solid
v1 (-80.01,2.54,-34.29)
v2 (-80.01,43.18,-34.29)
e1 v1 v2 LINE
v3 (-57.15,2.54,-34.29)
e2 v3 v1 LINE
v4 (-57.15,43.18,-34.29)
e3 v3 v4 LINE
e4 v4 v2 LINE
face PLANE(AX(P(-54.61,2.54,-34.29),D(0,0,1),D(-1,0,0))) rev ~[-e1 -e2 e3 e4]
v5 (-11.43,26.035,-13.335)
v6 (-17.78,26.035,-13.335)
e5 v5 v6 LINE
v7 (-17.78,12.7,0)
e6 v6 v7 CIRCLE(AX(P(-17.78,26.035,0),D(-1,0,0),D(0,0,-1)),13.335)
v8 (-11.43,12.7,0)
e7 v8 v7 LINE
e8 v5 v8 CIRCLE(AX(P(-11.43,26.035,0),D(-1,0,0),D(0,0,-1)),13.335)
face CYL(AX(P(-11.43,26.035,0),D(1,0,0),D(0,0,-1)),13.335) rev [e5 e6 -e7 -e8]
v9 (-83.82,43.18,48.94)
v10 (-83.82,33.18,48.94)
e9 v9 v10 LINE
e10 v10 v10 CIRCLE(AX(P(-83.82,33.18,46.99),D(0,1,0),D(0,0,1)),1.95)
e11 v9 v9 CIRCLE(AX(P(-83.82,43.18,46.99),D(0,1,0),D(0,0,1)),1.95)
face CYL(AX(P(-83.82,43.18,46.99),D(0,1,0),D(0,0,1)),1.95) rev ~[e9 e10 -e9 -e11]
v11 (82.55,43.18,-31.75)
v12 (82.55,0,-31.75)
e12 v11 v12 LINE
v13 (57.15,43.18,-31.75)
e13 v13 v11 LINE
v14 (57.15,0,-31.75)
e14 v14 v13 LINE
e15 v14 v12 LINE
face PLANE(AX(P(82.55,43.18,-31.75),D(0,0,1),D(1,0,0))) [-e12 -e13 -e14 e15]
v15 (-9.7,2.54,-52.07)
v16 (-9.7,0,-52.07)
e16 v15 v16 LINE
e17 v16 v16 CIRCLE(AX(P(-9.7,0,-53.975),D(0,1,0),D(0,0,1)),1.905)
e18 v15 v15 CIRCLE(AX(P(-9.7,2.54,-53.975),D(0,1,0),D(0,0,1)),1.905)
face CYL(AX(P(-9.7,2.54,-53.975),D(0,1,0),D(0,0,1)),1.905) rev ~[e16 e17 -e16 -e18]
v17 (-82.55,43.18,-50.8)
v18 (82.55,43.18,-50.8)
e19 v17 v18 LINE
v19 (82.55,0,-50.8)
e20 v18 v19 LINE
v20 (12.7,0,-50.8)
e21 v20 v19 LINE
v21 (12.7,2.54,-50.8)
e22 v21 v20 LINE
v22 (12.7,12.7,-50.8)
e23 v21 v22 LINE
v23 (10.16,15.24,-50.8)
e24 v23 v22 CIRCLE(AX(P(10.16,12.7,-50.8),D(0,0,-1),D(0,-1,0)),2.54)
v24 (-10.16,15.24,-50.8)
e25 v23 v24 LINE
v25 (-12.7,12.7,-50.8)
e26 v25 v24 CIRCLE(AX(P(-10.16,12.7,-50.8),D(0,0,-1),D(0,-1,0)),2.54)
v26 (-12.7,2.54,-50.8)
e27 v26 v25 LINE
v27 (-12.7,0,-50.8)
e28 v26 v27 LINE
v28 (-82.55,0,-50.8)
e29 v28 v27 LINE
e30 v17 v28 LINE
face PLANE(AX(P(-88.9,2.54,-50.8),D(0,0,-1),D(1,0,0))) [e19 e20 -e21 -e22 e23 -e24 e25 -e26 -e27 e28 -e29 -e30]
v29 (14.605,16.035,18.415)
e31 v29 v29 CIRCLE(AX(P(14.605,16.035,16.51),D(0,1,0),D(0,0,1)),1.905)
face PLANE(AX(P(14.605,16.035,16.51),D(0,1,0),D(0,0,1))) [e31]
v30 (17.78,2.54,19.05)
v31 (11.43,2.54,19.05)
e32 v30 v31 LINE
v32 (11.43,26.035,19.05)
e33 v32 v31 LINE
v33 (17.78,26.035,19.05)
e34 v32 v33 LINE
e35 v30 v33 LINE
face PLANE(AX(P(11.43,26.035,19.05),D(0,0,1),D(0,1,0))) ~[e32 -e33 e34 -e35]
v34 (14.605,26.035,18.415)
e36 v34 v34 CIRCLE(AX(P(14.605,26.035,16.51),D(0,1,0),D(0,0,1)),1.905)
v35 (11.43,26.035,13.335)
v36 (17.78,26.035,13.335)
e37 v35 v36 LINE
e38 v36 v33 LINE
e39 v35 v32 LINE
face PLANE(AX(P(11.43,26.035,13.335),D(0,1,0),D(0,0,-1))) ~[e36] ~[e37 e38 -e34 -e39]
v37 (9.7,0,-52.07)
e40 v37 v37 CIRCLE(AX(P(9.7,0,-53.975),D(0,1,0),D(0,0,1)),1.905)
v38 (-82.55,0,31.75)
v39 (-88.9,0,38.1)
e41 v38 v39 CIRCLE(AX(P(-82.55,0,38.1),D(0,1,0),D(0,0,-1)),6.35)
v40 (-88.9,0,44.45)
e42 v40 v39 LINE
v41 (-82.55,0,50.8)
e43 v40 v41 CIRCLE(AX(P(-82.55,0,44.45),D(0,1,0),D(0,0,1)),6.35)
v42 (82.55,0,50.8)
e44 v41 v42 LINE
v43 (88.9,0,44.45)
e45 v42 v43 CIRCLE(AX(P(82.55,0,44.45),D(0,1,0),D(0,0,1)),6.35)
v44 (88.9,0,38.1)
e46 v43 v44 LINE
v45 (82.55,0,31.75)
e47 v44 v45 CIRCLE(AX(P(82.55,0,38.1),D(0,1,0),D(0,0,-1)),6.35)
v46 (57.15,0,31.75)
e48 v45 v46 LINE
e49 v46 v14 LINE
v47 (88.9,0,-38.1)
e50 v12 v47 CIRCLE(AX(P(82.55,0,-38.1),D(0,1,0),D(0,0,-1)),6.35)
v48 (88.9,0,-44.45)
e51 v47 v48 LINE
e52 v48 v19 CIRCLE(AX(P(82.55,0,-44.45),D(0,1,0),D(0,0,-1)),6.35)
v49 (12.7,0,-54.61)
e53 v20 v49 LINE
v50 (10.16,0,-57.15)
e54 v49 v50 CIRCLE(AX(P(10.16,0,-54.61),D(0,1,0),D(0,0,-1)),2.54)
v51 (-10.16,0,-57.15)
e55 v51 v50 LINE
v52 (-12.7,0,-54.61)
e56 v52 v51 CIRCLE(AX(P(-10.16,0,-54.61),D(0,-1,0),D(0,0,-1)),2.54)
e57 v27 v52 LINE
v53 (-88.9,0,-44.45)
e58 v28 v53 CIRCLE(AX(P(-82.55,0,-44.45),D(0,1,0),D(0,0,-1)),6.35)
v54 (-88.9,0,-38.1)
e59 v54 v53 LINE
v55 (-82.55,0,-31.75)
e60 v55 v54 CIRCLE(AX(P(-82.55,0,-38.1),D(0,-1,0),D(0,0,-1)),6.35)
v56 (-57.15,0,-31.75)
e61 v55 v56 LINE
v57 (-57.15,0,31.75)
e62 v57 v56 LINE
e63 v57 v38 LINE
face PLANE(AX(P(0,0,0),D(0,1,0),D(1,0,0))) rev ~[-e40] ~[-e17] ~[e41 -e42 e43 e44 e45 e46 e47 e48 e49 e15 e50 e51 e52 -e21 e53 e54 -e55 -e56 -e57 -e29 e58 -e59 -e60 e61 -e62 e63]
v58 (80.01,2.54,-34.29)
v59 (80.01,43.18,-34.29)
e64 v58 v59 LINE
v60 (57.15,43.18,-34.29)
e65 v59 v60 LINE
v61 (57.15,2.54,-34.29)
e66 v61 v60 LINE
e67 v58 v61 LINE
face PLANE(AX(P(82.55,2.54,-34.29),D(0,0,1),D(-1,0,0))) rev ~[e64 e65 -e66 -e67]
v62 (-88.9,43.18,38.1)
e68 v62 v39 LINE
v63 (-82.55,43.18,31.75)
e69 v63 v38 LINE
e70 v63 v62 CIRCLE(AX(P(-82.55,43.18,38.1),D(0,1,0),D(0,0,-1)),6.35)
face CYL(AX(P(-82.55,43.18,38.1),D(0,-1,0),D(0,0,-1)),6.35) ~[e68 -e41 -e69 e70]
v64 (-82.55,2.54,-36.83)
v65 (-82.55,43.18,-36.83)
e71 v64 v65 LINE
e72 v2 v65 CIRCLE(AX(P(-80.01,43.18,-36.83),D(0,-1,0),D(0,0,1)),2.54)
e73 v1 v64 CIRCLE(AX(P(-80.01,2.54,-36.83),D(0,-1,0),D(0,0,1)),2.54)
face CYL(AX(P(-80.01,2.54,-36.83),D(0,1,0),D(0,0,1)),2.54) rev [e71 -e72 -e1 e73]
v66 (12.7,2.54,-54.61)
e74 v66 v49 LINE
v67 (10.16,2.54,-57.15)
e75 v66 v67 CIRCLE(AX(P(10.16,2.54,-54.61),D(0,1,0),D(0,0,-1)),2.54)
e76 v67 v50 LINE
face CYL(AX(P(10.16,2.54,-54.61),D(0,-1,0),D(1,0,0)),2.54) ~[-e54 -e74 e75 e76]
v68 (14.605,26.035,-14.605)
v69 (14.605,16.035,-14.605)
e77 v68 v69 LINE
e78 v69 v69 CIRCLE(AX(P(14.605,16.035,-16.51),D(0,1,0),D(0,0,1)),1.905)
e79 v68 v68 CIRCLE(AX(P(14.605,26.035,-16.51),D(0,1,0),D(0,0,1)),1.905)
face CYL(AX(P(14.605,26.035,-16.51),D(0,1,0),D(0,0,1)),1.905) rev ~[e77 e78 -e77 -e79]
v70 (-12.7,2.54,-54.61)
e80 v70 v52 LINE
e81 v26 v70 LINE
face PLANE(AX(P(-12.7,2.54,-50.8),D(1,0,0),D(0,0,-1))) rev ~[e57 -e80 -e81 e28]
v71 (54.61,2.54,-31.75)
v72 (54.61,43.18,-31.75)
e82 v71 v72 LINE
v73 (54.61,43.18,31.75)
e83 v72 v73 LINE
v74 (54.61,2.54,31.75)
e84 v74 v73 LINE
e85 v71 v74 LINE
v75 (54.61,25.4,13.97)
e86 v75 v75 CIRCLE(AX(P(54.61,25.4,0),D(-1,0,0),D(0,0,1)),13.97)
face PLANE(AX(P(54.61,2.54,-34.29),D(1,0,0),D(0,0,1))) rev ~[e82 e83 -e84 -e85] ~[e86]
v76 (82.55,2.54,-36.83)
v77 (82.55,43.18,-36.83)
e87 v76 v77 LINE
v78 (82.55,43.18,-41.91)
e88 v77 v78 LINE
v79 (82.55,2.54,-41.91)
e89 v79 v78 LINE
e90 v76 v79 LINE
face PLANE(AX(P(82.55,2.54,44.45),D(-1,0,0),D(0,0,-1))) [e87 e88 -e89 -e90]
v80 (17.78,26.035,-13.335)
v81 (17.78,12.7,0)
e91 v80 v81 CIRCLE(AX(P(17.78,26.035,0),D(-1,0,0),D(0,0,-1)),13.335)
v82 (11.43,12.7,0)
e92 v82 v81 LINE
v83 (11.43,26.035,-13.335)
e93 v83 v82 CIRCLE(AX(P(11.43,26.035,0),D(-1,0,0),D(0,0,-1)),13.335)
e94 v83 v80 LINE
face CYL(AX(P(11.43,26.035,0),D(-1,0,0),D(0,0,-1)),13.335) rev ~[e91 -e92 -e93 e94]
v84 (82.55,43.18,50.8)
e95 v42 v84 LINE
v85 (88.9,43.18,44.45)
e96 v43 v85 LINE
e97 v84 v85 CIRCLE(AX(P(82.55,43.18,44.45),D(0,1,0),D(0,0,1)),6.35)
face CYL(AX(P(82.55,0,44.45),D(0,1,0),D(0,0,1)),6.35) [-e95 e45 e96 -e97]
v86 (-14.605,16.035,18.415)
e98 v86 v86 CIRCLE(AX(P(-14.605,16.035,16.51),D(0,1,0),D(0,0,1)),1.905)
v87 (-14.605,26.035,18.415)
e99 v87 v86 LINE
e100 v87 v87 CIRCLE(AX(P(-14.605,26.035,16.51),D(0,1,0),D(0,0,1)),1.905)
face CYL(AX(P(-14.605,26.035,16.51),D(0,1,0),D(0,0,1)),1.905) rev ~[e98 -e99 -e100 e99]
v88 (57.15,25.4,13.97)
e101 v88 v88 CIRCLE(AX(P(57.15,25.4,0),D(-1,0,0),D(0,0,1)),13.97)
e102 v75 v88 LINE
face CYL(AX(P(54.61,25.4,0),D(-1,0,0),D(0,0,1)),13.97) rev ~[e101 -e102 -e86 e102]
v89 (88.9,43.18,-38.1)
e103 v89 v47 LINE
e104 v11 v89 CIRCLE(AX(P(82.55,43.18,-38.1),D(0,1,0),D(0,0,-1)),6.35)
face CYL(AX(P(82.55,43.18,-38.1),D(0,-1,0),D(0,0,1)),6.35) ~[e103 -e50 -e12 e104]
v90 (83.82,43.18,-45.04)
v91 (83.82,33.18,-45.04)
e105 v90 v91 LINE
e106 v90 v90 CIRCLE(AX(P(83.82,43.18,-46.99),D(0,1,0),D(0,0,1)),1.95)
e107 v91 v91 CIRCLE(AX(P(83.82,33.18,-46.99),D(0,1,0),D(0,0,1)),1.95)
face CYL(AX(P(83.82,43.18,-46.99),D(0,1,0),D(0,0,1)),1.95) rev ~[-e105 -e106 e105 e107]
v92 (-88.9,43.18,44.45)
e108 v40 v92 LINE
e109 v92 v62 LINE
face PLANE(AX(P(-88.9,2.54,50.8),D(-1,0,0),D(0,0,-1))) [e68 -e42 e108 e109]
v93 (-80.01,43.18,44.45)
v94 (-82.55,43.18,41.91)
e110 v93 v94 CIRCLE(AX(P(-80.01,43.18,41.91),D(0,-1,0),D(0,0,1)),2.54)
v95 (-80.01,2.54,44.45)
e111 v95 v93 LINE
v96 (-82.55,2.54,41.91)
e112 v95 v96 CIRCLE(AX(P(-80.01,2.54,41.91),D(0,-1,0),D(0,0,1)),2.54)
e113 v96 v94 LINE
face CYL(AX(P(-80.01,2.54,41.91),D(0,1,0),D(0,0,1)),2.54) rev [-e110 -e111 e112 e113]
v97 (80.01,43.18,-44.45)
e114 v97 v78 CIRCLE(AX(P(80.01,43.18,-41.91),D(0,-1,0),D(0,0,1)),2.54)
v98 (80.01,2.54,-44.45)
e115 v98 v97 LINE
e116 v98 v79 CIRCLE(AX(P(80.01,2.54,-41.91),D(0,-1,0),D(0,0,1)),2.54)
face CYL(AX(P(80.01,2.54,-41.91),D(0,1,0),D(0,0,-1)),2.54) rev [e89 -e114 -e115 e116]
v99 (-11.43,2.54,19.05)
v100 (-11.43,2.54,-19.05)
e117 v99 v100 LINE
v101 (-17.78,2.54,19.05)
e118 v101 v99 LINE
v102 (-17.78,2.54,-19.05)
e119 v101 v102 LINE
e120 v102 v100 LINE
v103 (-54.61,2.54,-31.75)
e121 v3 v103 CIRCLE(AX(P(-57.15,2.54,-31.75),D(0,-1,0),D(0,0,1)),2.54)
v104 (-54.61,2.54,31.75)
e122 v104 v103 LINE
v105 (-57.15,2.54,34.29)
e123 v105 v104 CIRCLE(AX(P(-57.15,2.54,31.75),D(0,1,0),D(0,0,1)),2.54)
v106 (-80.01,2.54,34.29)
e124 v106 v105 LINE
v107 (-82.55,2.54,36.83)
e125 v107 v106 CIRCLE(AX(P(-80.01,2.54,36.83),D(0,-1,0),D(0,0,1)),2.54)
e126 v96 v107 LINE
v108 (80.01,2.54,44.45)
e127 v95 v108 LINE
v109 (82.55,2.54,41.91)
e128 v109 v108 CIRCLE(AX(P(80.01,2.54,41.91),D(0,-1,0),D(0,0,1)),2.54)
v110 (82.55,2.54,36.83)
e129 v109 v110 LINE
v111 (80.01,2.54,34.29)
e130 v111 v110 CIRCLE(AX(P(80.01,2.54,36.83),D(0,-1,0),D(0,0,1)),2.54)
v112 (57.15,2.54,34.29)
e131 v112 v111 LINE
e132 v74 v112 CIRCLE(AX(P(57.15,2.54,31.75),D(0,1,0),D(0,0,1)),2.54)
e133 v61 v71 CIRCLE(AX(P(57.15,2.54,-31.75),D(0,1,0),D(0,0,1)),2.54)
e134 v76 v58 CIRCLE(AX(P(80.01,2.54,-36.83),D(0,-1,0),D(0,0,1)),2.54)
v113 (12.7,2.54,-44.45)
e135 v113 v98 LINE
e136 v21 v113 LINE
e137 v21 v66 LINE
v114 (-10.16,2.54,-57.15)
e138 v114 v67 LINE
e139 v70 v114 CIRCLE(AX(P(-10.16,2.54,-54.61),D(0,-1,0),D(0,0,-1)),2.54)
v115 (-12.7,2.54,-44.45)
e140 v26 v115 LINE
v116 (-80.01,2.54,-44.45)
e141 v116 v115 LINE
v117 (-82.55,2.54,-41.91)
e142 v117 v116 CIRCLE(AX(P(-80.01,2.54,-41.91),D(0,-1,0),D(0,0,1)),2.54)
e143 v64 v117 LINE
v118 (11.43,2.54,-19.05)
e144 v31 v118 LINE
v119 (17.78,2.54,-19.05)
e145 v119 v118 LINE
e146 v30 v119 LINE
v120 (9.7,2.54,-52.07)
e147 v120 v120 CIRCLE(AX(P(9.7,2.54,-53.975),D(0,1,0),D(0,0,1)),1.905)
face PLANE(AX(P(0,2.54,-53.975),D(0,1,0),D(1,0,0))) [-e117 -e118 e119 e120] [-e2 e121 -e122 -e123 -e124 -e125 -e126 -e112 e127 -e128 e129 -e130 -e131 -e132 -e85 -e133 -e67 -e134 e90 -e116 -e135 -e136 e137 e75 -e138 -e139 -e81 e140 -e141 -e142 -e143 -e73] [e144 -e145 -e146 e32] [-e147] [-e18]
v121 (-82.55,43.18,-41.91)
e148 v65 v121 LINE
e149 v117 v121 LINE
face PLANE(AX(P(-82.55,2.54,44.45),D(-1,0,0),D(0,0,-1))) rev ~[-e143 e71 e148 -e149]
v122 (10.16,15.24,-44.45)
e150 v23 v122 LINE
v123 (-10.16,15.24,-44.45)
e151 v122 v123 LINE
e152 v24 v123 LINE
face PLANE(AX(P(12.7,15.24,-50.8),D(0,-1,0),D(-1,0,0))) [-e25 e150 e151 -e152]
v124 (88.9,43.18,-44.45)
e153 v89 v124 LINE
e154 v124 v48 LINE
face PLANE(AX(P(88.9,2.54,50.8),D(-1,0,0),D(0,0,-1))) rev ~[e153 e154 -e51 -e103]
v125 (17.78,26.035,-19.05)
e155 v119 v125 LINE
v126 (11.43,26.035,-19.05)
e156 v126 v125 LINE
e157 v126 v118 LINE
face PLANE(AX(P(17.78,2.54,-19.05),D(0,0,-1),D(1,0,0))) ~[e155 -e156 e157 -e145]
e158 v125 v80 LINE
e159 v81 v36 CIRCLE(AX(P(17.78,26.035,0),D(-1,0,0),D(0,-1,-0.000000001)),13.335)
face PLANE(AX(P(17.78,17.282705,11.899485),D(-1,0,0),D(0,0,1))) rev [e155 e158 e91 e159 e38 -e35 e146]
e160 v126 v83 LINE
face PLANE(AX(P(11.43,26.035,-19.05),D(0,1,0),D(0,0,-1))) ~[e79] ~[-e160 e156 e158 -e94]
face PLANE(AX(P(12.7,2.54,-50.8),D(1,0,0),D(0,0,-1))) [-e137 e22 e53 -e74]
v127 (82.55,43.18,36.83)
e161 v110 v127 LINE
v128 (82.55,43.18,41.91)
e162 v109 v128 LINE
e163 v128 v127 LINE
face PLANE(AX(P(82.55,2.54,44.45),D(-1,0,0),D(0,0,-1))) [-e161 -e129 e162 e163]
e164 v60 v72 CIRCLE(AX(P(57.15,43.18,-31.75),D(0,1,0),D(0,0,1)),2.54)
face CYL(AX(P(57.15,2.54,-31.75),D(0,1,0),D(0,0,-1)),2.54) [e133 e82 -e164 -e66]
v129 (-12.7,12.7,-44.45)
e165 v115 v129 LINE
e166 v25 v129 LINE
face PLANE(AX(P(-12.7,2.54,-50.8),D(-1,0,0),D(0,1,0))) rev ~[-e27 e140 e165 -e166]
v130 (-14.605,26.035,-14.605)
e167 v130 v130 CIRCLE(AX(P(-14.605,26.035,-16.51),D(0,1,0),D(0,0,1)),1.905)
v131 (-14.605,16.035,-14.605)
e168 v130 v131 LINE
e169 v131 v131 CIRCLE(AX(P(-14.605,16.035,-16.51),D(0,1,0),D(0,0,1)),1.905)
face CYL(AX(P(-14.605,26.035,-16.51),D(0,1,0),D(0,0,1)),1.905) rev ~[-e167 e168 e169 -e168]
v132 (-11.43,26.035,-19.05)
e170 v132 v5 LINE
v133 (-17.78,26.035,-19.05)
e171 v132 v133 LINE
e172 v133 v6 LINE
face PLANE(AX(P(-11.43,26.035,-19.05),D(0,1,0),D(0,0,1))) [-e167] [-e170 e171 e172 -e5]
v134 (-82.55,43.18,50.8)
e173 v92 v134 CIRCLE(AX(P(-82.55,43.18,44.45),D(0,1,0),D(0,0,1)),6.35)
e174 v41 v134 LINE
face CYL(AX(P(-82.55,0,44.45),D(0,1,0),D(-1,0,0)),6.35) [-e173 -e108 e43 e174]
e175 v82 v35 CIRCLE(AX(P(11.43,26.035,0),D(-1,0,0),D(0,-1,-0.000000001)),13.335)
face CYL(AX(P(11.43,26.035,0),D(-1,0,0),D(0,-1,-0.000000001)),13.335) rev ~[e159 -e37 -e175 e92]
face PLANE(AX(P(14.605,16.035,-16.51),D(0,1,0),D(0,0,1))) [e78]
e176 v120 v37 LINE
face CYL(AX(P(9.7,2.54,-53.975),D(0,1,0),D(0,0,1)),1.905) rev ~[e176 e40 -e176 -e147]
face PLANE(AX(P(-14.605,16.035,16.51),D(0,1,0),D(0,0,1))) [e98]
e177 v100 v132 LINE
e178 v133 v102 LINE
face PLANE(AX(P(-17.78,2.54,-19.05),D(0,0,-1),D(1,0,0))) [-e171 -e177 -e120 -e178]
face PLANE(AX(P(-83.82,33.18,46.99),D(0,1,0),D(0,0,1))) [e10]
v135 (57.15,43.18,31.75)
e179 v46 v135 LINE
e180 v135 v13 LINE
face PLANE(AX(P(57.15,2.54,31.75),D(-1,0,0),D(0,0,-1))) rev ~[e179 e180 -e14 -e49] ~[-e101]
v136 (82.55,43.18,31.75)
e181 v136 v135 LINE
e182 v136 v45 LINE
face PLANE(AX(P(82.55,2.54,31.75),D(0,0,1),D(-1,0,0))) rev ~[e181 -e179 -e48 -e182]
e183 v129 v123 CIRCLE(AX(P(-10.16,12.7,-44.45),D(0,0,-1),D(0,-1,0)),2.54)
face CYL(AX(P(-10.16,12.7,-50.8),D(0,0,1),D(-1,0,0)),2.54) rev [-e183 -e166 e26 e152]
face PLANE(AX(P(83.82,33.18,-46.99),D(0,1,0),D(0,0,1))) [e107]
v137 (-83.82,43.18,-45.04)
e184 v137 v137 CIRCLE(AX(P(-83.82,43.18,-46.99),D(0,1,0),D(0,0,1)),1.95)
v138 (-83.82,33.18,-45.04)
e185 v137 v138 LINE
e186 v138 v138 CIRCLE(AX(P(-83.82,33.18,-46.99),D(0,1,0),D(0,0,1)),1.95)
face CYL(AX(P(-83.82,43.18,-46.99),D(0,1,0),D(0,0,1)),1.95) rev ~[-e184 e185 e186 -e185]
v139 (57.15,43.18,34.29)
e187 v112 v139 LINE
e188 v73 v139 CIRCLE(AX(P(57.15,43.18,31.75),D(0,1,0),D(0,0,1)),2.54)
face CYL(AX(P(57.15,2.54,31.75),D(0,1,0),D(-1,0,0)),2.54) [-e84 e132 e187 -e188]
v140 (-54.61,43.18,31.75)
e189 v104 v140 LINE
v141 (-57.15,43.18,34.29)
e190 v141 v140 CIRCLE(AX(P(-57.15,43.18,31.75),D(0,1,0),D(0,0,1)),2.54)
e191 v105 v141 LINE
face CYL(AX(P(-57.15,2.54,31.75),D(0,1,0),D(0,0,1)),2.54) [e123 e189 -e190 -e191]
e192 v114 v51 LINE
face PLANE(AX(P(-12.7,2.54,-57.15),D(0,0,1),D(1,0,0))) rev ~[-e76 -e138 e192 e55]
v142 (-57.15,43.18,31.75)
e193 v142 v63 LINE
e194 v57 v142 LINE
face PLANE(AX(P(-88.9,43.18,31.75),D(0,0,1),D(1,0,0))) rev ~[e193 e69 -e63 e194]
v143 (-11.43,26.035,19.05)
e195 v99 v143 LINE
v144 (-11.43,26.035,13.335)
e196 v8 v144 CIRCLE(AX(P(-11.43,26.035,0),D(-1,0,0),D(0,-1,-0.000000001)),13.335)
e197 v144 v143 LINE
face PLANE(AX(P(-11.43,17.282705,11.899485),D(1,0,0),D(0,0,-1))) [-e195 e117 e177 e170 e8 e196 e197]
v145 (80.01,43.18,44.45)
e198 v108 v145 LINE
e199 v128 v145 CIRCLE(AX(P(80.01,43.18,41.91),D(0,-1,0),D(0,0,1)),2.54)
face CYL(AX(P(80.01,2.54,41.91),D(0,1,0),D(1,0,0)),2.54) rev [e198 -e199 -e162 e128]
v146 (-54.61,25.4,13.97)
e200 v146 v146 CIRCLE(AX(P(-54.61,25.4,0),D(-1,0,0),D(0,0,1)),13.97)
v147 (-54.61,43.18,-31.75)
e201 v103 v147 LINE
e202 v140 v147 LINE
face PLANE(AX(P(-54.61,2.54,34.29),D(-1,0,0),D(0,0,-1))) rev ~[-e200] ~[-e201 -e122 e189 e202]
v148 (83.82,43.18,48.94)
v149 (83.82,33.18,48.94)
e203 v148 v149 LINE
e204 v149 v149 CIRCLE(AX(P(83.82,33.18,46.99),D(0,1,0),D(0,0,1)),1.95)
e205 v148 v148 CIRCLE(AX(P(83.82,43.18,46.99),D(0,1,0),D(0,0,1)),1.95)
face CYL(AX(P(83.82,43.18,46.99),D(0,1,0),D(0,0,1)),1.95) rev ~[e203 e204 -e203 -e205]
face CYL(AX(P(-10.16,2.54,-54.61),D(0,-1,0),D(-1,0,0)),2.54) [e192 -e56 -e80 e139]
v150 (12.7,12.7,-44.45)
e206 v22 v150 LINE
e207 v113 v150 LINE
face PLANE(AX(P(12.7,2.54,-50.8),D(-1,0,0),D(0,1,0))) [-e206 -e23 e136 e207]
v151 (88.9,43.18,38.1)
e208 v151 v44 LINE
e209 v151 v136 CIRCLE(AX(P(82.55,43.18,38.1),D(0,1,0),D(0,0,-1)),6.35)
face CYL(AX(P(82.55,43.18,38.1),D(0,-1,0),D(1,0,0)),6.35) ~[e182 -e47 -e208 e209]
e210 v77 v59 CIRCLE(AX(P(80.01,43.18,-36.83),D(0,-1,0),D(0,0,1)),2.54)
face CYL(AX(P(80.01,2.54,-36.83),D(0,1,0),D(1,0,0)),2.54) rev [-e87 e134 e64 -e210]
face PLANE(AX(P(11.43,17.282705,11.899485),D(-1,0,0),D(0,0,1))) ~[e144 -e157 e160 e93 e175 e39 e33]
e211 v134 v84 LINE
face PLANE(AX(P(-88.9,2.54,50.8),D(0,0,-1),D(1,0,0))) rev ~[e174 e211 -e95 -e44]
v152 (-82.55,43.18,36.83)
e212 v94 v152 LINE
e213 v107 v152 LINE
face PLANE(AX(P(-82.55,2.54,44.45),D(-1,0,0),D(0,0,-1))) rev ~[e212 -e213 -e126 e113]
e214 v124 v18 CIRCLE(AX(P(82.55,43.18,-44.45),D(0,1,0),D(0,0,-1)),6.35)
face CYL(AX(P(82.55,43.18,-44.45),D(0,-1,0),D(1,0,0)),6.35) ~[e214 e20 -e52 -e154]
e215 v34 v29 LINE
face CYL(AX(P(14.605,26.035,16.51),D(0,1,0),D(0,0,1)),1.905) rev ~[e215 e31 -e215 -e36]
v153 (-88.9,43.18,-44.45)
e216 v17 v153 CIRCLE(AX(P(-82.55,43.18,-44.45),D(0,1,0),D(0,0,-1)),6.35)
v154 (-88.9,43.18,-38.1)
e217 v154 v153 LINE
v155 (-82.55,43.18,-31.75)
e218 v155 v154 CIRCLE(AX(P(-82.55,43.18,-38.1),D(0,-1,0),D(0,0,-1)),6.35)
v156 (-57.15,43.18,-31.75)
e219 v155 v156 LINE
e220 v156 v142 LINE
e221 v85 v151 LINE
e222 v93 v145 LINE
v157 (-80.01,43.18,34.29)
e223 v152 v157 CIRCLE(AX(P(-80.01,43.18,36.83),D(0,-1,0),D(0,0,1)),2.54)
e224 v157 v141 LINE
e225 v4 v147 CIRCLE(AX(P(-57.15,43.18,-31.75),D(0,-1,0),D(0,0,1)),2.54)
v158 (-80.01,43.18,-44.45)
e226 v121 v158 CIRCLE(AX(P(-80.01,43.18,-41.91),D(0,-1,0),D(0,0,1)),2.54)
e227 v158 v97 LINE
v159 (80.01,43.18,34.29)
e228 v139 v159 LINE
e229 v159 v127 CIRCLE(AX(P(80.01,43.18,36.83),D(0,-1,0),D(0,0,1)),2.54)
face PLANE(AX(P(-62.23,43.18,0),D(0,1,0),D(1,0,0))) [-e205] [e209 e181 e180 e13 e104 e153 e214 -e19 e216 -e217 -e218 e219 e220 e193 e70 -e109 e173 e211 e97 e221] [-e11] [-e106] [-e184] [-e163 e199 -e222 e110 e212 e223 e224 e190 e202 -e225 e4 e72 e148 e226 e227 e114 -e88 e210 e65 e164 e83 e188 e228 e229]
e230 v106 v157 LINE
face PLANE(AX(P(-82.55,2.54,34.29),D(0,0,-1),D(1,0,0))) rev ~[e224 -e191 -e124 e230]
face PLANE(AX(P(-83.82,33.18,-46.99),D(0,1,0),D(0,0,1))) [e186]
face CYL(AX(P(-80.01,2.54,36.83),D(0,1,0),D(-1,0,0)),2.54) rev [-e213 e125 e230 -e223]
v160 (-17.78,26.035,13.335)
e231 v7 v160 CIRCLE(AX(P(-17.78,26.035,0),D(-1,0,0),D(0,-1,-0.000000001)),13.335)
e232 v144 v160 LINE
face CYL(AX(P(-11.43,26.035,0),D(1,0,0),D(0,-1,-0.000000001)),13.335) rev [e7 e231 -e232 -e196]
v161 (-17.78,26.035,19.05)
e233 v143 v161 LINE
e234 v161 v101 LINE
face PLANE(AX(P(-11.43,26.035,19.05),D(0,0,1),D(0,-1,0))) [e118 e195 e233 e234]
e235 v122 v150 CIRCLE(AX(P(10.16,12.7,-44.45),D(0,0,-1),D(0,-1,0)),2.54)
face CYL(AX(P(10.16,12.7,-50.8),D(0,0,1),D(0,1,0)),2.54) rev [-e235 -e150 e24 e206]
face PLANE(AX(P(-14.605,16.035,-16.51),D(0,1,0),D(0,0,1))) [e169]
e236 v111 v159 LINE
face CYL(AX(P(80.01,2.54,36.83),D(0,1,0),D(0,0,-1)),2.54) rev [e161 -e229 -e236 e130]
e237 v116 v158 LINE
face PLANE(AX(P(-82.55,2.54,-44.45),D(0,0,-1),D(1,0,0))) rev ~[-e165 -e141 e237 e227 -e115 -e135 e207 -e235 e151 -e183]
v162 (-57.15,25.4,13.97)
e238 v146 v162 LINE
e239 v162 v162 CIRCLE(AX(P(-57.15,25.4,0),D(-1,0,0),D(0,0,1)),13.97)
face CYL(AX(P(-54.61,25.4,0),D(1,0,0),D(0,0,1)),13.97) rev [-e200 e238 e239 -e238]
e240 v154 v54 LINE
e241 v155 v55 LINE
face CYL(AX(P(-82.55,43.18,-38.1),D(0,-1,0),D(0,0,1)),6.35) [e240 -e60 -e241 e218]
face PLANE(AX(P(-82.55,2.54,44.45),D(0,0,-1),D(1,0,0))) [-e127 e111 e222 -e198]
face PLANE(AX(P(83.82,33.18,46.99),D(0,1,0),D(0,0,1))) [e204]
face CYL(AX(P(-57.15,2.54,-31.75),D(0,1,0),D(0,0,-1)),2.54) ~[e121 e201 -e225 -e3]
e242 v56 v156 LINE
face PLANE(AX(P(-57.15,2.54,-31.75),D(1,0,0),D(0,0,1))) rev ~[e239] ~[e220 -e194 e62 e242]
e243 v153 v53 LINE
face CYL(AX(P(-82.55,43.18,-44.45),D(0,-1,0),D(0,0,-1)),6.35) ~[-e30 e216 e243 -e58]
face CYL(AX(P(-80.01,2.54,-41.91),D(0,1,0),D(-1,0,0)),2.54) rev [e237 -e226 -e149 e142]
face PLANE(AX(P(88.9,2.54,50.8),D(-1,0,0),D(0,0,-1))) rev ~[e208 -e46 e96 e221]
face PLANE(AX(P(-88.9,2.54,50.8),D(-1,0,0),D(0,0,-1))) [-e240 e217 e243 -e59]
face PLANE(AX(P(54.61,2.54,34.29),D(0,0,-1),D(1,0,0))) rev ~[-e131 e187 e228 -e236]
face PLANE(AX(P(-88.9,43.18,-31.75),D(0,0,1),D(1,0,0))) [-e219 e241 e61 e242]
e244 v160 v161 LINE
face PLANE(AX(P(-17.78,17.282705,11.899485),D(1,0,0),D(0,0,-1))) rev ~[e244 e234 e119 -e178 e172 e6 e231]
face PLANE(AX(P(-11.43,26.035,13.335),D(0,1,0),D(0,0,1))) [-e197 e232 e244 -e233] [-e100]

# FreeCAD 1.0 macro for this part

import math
import FreeCAD as App
import Part
import Sketcher
from FreeCAD import Vector
Q = App.Units.Quantity


def edges_at(feature, points):
    """Names of the edges that pass closest to the given points."""
    edges = feature.Shape.Edges
    near = lambda p: min(range(len(edges)), key=lambda i: edges[i].distToShape(Part.Vertex(*p))[0])
    return sorted({f"Edge{near(p) + 1}" for p in points})

doc = App.newDocument("Part")
body = doc.addObject("PartDesign::Body", "Body")

sketch1 = doc.addObject("Sketcher::SketchObject", "Sketch")
body.addObject(sketch1)
sketch1.AttachmentSupport = (doc.XZ_Plane, [""])
sketch1.MapMode = "FlatFace"
sketch1.addGeometry([
    Part.LineSegment(Vector(-89, -51, 0), Vector(-89, 51, 0)),
    Part.LineSegment(Vector(-89, 51, 0), Vector(89, 51, 0)),
    Part.LineSegment(Vector(89, 51, 0), Vector(89, -51, 0)),
    Part.LineSegment(Vector(89, -51, 0), Vector(-89, -51, 0)),
], False)
sketch1.addConstraint([
    Sketcher.Constraint("Coincident", 0, 2, 1, 1),
    Sketcher.Constraint("Coincident", 1, 2, 2, 1),
    Sketcher.Constraint("Coincident", 2, 2, 3, 1),
    Sketcher.Constraint("Coincident", 3, 2, 0, 1),
    Sketcher.Constraint("Vertical", 0),
    Sketcher.Constraint("Horizontal", 1),
    Sketcher.Constraint("Vertical", 2),
    Sketcher.Constraint("Horizontal", 3),
    Sketcher.Constraint("Symmetric", 0, 2, 2, 2, -1, 1),
    Sketcher.Constraint("DistanceX", 1, 1, 1, 2, Q("7 in")),
    Sketcher.Constraint("DistanceY", 0, 1, 0, 2, Q("4 in")),
])
pad1 = doc.addObject("PartDesign::Pad", "Pad")
body.addObject(pad1)
pad1.Profile = sketch1
pad1.Length = Q("0.1 in")
pad1.Reversed = True

sketch2 = doc.addObject("Sketcher::SketchObject", "Sketch001")
body.addObject(sketch2)
sketch2.AttachmentSupport = (doc.XZ_Plane, [""])
sketch2.MapMode = "FlatFace"
sketch2.AttachmentOffset = App.Placement(Vector(0, 0, -0.1 * 25.4), App.Rotation())
sketch2.addGeometry([
    Part.LineSegment(Vector(-83, -32, 0), Vector(-83, 32, 0)),
    Part.LineSegment(Vector(-83, 32, 0), Vector(-57, 32, 0)),
    Part.LineSegment(Vector(-57, 32, 0), Vector(-57, -32, 0)),
    Part.LineSegment(Vector(-57, -32, 0), Vector(-83, -32, 0)),
    Part.LineSegment(Vector(57, -32, 0), Vector(57, 32, 0)),
    Part.LineSegment(Vector(57, 32, 0), Vector(83, 32, 0)),
    Part.LineSegment(Vector(83, 32, 0), Vector(83, -32, 0)),
    Part.LineSegment(Vector(83, -32, 0), Vector(57, -32, 0)),
], False)
sketch2.addConstraint([
    Sketcher.Constraint("Coincident", 0, 2, 1, 1),
    Sketcher.Constraint("Coincident", 1, 2, 2, 1),
    Sketcher.Constraint("Coincident", 2, 2, 3, 1),
    Sketcher.Constraint("Coincident", 3, 2, 0, 1),
    Sketcher.Constraint("Coincident", 4, 2, 5, 1),
    Sketcher.Constraint("Coincident", 5, 2, 6, 1),
    Sketcher.Constraint("Coincident", 6, 2, 7, 1),
    Sketcher.Constraint("Coincident", 7, 2, 4, 1),
    Sketcher.Constraint("Vertical", 0),
    Sketcher.Constraint("Horizontal", 1),
    Sketcher.Constraint("Vertical", 2),
    Sketcher.Constraint("Horizontal", 3),
    Sketcher.Constraint("Vertical", 4),
    Sketcher.Constraint("Horizontal", 5),
    Sketcher.Constraint("Vertical", 6),
    Sketcher.Constraint("Horizontal", 7),
    Sketcher.Constraint("Symmetric", 2, 2, 4, 2, -1, 1),
    Sketcher.Constraint("Symmetric", 0, 2, 6, 2, -1, 1),
    Sketcher.Constraint("Horizontal", 1, 2, 4, 2),
    Sketcher.Constraint("DistanceX", 1, 1, 1, 2, Q("1 in")),
    Sketcher.Constraint("DistanceY", 0, 1, 0, 2, Q("2.5 in")),
    Sketcher.Constraint("DistanceX", 1, 2, 4, 2, Q("4.5 in")),
])
pocket1 = doc.addObject("PartDesign::Pocket", "Pocket")
body.addObject(pocket1)
pocket1.Profile = sketch2
pocket1.Length = Q("0.1 in")
pocket1.Reversed = True

sketch3 = doc.addObject("Sketcher::SketchObject", "Sketch002")
body.addObject(sketch3)
sketch3.AttachmentSupport = (doc.XZ_Plane, [""])
sketch3.MapMode = "FlatFace"
sketch3.AttachmentOffset = App.Placement(Vector(0, 0, -0.1 * 25.4), App.Rotation())
sketch3.addGeometry([
    Part.LineSegment(Vector(-89, -51, 0), Vector(-89, 51, 0)),
    Part.LineSegment(Vector(-89, 51, 0), Vector(89, 51, 0)),
    Part.LineSegment(Vector(89, 51, 0), Vector(89, -51, 0)),
    Part.LineSegment(Vector(89, -51, 0), Vector(-89, -51, 0)),
    Part.LineSegment(Vector(83, 44, 0), Vector(-83, 44, 0)),
    Part.LineSegment(Vector(-83, 44, 0), Vector(-83, -44, 0)),
    Part.LineSegment(Vector(-83, -44, 0), Vector(83, -44, 0)),
    Part.LineSegment(Vector(83, -44, 0), Vector(83, 44, 0)),
], False)
sketch3.addConstraint([
    Sketcher.Constraint("Coincident", 0, 2, 1, 1),
    Sketcher.Constraint("Coincident", 1, 2, 2, 1),
    Sketcher.Constraint("Coincident", 2, 2, 3, 1),
    Sketcher.Constraint("Coincident", 3, 2, 0, 1),
    Sketcher.Constraint("Coincident", 4, 2, 5, 1),
    Sketcher.Constraint("Coincident", 5, 2, 6, 1),
    Sketcher.Constraint("Coincident", 6, 2, 7, 1),
    Sketcher.Constraint("Coincident", 7, 2, 4, 1),
    Sketcher.Constraint("Vertical", 0),
    Sketcher.Constraint("Horizontal", 1),
    Sketcher.Constraint("Vertical", 2),
    Sketcher.Constraint("Horizontal", 3),
    Sketcher.Constraint("Horizontal", 4),
    Sketcher.Constraint("Vertical", 5),
    Sketcher.Constraint("Horizontal", 6),
    Sketcher.Constraint("Vertical", 7),
    Sketcher.Constraint("Symmetric", 0, 2, 2, 2, -1, 1),
    Sketcher.Constraint("Symmetric", 4, 2, 6, 2, -1, 1),
    Sketcher.Constraint("DistanceX", 1, 1, 1, 2, Q("7 in")),
    Sketcher.Constraint("DistanceY", 0, 1, 0, 2, Q("4 in")),
    Sketcher.Constraint("DistanceX", 4, 2, 4, 1, Q("6.5 in")),
    Sketcher.Constraint("DistanceY", 5, 2, 5, 1, Q("3.5 in")),
])
pad2 = doc.addObject("PartDesign::Pad", "Pad001")
body.addObject(pad2)
pad2.Profile = sketch3
pad2.Length = Q("1.6 in")
pad2.Reversed = True

sketch4 = doc.addObject("Sketcher::SketchObject", "Sketch003")
body.addObject(sketch4)
sketch4.AttachmentSupport = (doc.XZ_Plane, [""])
sketch4.MapMode = "FlatFace"
sketch4.AttachmentOffset = App.Placement(Vector(0, 0, -0.1 * 25.4), App.Rotation())
sketch4.addGeometry([
    Part.LineSegment(Vector(-54.6, -34.3, 0), Vector(-82.5, -34.3, 0)),
    Part.LineSegment(Vector(-82.5, -34.3, 0), Vector(-82.5, -31.8, 0)),
    Part.LineSegment(Vector(-82.5, -31.8, 0), Vector(-57.1, -31.8, 0)),
    Part.LineSegment(Vector(-57.1, -31.8, 0), Vector(-57.1, 31.8, 0)),
    Part.LineSegment(Vector(-57.1, 31.8, 0), Vector(-82.5, 31.8, 0)),
    Part.LineSegment(Vector(-82.5, 31.8, 0), Vector(-82.5, 34.3, 0)),
    Part.LineSegment(Vector(-82.5, 34.3, 0), Vector(-54.6, 34.3, 0)),
    Part.LineSegment(Vector(-54.6, 34.3, 0), Vector(-54.6, -34.3, 0)),
    Part.LineSegment(Vector(82.5, -34.3, 0), Vector(54.6, -34.3, 0)),
    Part.LineSegment(Vector(54.6, -34.3, 0), Vector(54.6, 34.3, 0)),
    Part.LineSegment(Vector(54.6, 34.3, 0), Vector(82.5, 34.3, 0)),
    Part.LineSegment(Vector(82.5, 34.3, 0), Vector(82.5, 31.8, 0)),
    Part.LineSegment(Vector(82.5, 31.8, 0), Vector(57.1, 31.8, 0)),
    Part.LineSegment(Vector(57.1, 31.8, 0), Vector(57.1, -31.8, 0)),
    Part.LineSegment(Vector(57.1, -31.8, 0), Vector(82.5, -31.8, 0)),
    Part.LineSegment(Vector(82.5, -31.8, 0), Vector(82.5, -34.3, 0)),
], False)
sketch4.addConstraint([
    Sketcher.Constraint("Coincident", 0, 2, 1, 1),
    Sketcher.Constraint("Coincident", 1, 2, 2, 1),
    Sketcher.Constraint("Coincident", 2, 2, 3, 1),
    Sketcher.Constraint("Coincident", 3, 2, 4, 1),
    Sketcher.Constraint("Coincident", 4, 2, 5, 1),
    Sketcher.Constraint("Coincident", 5, 2, 6, 1),
    Sketcher.Constraint("Coincident", 6, 2, 7, 1),
    Sketcher.Constraint("Coincident", 7, 2, 0, 1),
    Sketcher.Constraint("Coincident", 8, 2, 9, 1),
    Sketcher.Constraint("Coincident", 9, 2, 10, 1),
    Sketcher.Constraint("Coincident", 10, 2, 11, 1),
    Sketcher.Constraint("Coincident", 11, 2, 12, 1),
    Sketcher.Constraint("Coincident", 12, 2, 13, 1),
    Sketcher.Constraint("Coincident", 13, 2, 14, 1),
    Sketcher.Constraint("Coincident", 14, 2, 15, 1),
    Sketcher.Constraint("Coincident", 15, 2, 8, 1),
    Sketcher.Constraint("Horizontal", 0),
    Sketcher.Constraint("Vertical", 1),
    Sketcher.Constraint("Horizontal", 2),
    Sketcher.Constraint("Vertical", 3),
    Sketcher.Constraint("Horizontal", 4),
    Sketcher.Constraint("Vertical", 5),
    Sketcher.Constraint("Horizontal", 6),
    Sketcher.Constraint("Vertical", 7),
    Sketcher.Constraint("Horizontal", 8),
    Sketcher.Constraint("Vertical", 9),
    Sketcher.Constraint("Horizontal", 10),
    Sketcher.Constraint("Vertical", 11),
    Sketcher.Constraint("Horizontal", 12),
    Sketcher.Constraint("Vertical", 13),
    Sketcher.Constraint("Horizontal", 14),
    Sketcher.Constraint("Vertical", 15),
    Sketcher.Constraint("Symmetric", 6, 2, 8, 2, -1, 1),
    Sketcher.Constraint("Symmetric", 0, 2, 10, 2, -1, 1),
    Sketcher.Constraint("Symmetric", 2, 2, 12, 2, -1, 1),
    Sketcher.Constraint("Symmetric", 4, 2, 14, 2, -1, 1),
    Sketcher.Constraint("Symmetric", 5, 2, 10, 2, -2),
    Sketcher.Constraint("Horizontal", 4, 2, 11, 2),
    Sketcher.Constraint("DistanceX", 2, 1, 2, 2, Q("1 in")),
    Sketcher.Constraint("DistanceX", 0, 2, 0, 1, Q("1.1 in")),
    Sketcher.Constraint("DistanceY", 1, 1, 1, 2, Q("0.1 in")),
    Sketcher.Constraint("DistanceY", 3, 1, 3, 2, Q("2.5 in")),
    Sketcher.Constraint("DistanceX", 7, 2, 8, 2, Q("4.3 in")),
])
pad3 = doc.addObject("PartDesign::Pad", "Pad002")
body.addObject(pad3)
pad3.Profile = sketch4
pad3.Length = Q("1.6 in")
pad3.Reversed = True

sketch5 = doc.addObject("Sketcher::SketchObject", "Sketch004")
body.addObject(sketch5)
sketch5.AttachmentSupport = (doc.XZ_Plane, [""])
sketch5.MapMode = "FlatFace"
sketch5.AttachmentOffset = App.Placement(Vector(0, 0, -0.1 * 25.4), App.Rotation())
sketch5.addGeometry([
    Part.LineSegment(Vector(-18, -19, 0), Vector(-18, 19, 0)),
    Part.LineSegment(Vector(-18, 19, 0), Vector(-11, 19, 0)),
    Part.LineSegment(Vector(-11, 19, 0), Vector(-11, -19, 0)),
    Part.LineSegment(Vector(-11, -19, 0), Vector(-18, -19, 0)),
], False)
sketch5.addConstraint([
    Sketcher.Constraint("Coincident", 0, 2, 1, 1),
    Sketcher.Constraint("Coincident", 1, 2, 2, 1),
    Sketcher.Constraint("Coincident", 2, 2, 3, 1),
    Sketcher.Constraint("Coincident", 3, 2, 0, 1),
    Sketcher.Constraint("Vertical", 0),
    Sketcher.Constraint("Horizontal", 1),
    Sketcher.Constraint("Vertical", 2),
    Sketcher.Constraint("Horizontal", 3),
    Sketcher.Constraint("DistanceY", 0, 1, 0, 2, Q("1.5 in")),
    Sketcher.Constraint("DistanceX", 1, 1, 1, 2, Q("0.25 in")),
    Sketcher.Constraint("DistanceX", 0, 2, -1, 1, Q("0.7 in")),
    Sketcher.Constraint("DistanceY", -1, 1, 0, 2, Q("0.75 in")),
])
pad4 = doc.addObject("PartDesign::Pad", "Pad003")
body.addObject(pad4)
pad4.Profile = sketch5
pad4.Length = Q("0.4 in")
pad4.Reversed = True

sketch6 = doc.addObject("Sketcher::SketchObject", "Sketch005")
body.addObject(sketch6)
sketch6.AttachmentSupport = (doc.YZ_Plane, [""])
sketch6.MapMode = "FlatFace"
sketch6.AttachmentOffset = App.Placement(Vector(0, 0, -0.45 * 25.4), App.Rotation())
sketch6.addGeometry([
    Part.LineSegment(Vector(26, 19, 0), Vector(13, 19, 0)),
    Part.LineSegment(Vector(13, 19, 0), Vector(13, 0, 0)),
    Part.ArcOfCircle(Part.Circle(Vector(26, 0, 0), Vector(0, 0, 1), 13), math.radians(90), math.radians(180)),
    Part.LineSegment(Vector(26, 13, 0), Vector(26, 19, 0)),
    Part.ArcOfCircle(Part.Circle(Vector(26, 0, 0), Vector(0, 0, 1), 13), math.radians(-180), math.radians(-90)),
    Part.LineSegment(Vector(13, 0, 0), Vector(13, -19, 0)),
    Part.LineSegment(Vector(13, -19, 0), Vector(26, -19, 0)),
    Part.LineSegment(Vector(26, -19, 0), Vector(26, -13, 0)),
], False)
sketch6.addConstraint([
    Sketcher.Constraint("Coincident", 0, 2, 1, 1),
    Sketcher.Constraint("Tangent", 1, 2, 2, 2),
    Sketcher.Constraint("Coincident", 2, 1, 3, 1),
    Sketcher.Constraint("Coincident", 3, 2, 0, 1),
    Sketcher.Constraint("Tangent", 4, 1, 5, 1),
    Sketcher.Constraint("Coincident", 5, 2, 6, 1),
    Sketcher.Constraint("Coincident", 6, 2, 7, 1),
    Sketcher.Constraint("Coincident", 7, 2, 4, 2),
    Sketcher.Constraint("Horizontal", 0),
    Sketcher.Constraint("Vertical", 1),
    Sketcher.Constraint("Vertical", 3),
    Sketcher.Constraint("Vertical", 5),
    Sketcher.Constraint("Horizontal", 6),
    Sketcher.Constraint("Vertical", 7),
    Sketcher.Constraint("Coincident", 4, 3, 2, 3),
    Sketcher.Constraint("Equal", 2, 4),
    Sketcher.Constraint("Symmetric", 3, 2, 6, 2, -1),
    Sketcher.Constraint("PointOnObject", 2, 3, -1),
    Sketcher.Constraint("Vertical", 4, 3, 2, 1),
    Sketcher.Constraint("Radius", 2, Q("0.525 in")),
    Sketcher.Constraint("DistanceY", 1, 2, 1, 1, Q("0.75 in")),
    Sketcher.Constraint("DistanceX", -1, 1, 0, 2, Q("0.5 in")),
])
pad5 = doc.addObject("PartDesign::Pad", "Pad004")
body.addObject(pad5)
pad5.Profile = sketch6
pad5.Length = Q("0.25 in")
pad5.Reversed = True

sketch7 = doc.addObject("Sketcher::SketchObject", "Sketch006")
body.addObject(sketch7)
sketch7.AttachmentSupport = (doc.XZ_Plane, [""])
sketch7.MapMode = "FlatFace"
sketch7.AttachmentOffset = App.Placement(Vector(0, 0, -1.7 * 25.4), App.Rotation())
sketch7.addGeometry([
    Part.LineSegment(Vector(-89, -32, 0), Vector(-89, 32, 0)),
    Part.LineSegment(Vector(-89, 32, 0), Vector(-83, 32, 0)),
    Part.LineSegment(Vector(-83, 32, 0), Vector(-83, -32, 0)),
    Part.LineSegment(Vector(-83, -32, 0), Vector(-89, -32, 0)),
    Part.LineSegment(Vector(83, -32, 0), Vector(83, 32, 0)),
    Part.LineSegment(Vector(83, 32, 0), Vector(89, 32, 0)),
    Part.LineSegment(Vector(89, 32, 0), Vector(89, -32, 0)),
    Part.LineSegment(Vector(89, -32, 0), Vector(83, -32, 0)),
], False)
sketch7.addConstraint([
    Sketcher.Constraint("Coincident", 0, 2, 1, 1),
    Sketcher.Constraint("Coincident", 1, 2, 2, 1),
    Sketcher.Constraint("Coincident", 2, 2, 3, 1),
    Sketcher.Constraint("Coincident", 3, 2, 0, 1),
    Sketcher.Constraint("Coincident", 4, 2, 5, 1),
    Sketcher.Constraint("Coincident", 5, 2, 6, 1),
    Sketcher.Constraint("Coincident", 6, 2, 7, 1),
    Sketcher.Constraint("Coincident", 7, 2, 4, 1),
    Sketcher.Constraint("Vertical", 0),
    Sketcher.Constraint("Horizontal", 1),
    Sketcher.Constraint("Vertical", 2),
    Sketcher.Constraint("Horizontal", 3),
    Sketcher.Constraint("Vertical", 4),
    Sketcher.Constraint("Horizontal", 5),
    Sketcher.Constraint("Vertical", 6),
    Sketcher.Constraint("Horizontal", 7),
    Sketcher.Constraint("Symmetric", 2, 2, 4, 2, -1, 1),
    Sketcher.Constraint("Symmetric", 0, 2, 6, 2, -1, 1),
    Sketcher.Constraint("Horizontal", 1, 2, 4, 2),
    Sketcher.Constraint("DistanceY", 0, 1, 0, 2, Q("2.5 in")),
    Sketcher.Constraint("DistanceX", 0, 2, 5, 2, Q("7 in")),
    Sketcher.Constraint("DistanceX", 1, 1, 1, 2, Q("0.25 in")),
])
pocket2 = doc.addObject("PartDesign::Pocket", "Pocket001")
body.addObject(pocket2)
pocket2.Profile = sketch7
pocket2.Length = Q("4.24 in")
pocket2.Reversed = True
doc.recompute()

mirrored = doc.addObject("PartDesign::Mirrored", "Mirrored")
body.addObject(mirrored)
mirrored.Originals = [pad4, pad5]
mirrored.MirrorPlane = (doc.YZ_Plane, [""])
body.Tip = mirrored

sketch8 = doc.addObject("Sketcher::SketchObject", "Sketch007")
body.addObject(sketch8)
sketch8.AttachmentSupport = (doc.YZ_Plane, [""])
sketch8.MapMode = "FlatFace"
sketch8.AttachmentOffset = App.Placement(Vector(0, 0, 2.15 * 25.4), App.Rotation())
sketch8.addGeometry(Part.Circle(Vector(25, 0, 0), Vector(0, 0, 1), 14), False)
sketch8.addConstraint([
    Sketcher.Constraint("PointOnObject", 0, 3, -1),
    Sketcher.Constraint("Diameter", 0, Q("1.1 in")),
    Sketcher.Constraint("DistanceX", -1, 1, 0, 3, Q("1 in")),
])
pocket3 = doc.addObject("PartDesign::Pocket", "Pocket002")
body.addObject(pocket3)
pocket3.Profile = sketch8
pocket3.Length = Q("0.1 in")
pocket3.Reversed = True
doc.recompute()

mirrored2 = doc.addObject("PartDesign::Mirrored", "Mirrored001")
body.addObject(mirrored2)
mirrored2.Originals = [pocket3]
mirrored2.MirrorPlane = (doc.YZ_Plane, [""])
body.Tip = mirrored2
doc.recompute()

fillet = doc.addObject("PartDesign::Fillet", "Fillet")
body.addObject(fillet)
fillet.Base = (mirrored2, edges_at(mirrored2, [
    (-88.9, 21.59, 31.75),
    (-88.9, 21.59, -31.75),
    (88.9, 21.59, -31.75),
    (88.9, 21.59, 31.75),
    (88.9, 21.59, 50.8),
    (-88.9, 21.59, 50.8),
    (-88.9, 21.59, -50.8),
    (88.9, 21.59, -50.8),
]))
fillet.Radius = Q("0.25 in")
doc.recompute()

fillet2 = doc.addObject("PartDesign::Fillet", "Fillet001")
body.addObject(fillet2)
fillet2.Base = (fillet, edges_at(fillet, [
    (82.55, 22.86, -34.29),
    (-82.55, 22.86, 44.45),
    (82.55, 22.86, 44.45),
    (82.55, 22.86, -44.45),
    (-82.55, 22.86, -44.45),
    (-54.61, 22.86, 34.29),
    (-54.61, 22.86, -34.29),
    (-82.55, 22.86, -34.29),
    (-82.55, 22.86, 34.29),
    (54.61, 22.86, -34.29),
    (54.61, 22.86, 34.29),
    (82.55, 22.86, 34.29),
]))
fillet2.Radius = Q("0.1 in")

sketch9 = doc.addObject("Sketcher::SketchObject", "Sketch008")
body.addObject(sketch9)
sketch9.AttachmentSupport = (doc.XZ_Plane, [""])
sketch9.MapMode = "FlatFace"
sketch9.AttachmentOffset = App.Placement(Vector(0, 0, -0.1 * 25.4), App.Rotation())
sketch9.addGeometry([
    Part.LineSegment(Vector(-13, -57, 0), Vector(-13, -51, 0)),
    Part.LineSegment(Vector(-13, -51, 0), Vector(13, -51, 0)),
    Part.LineSegment(Vector(13, -51, 0), Vector(13, -57, 0)),
    Part.LineSegment(Vector(13, -57, 0), Vector(-13, -57, 0)),
], False)
sketch9.addConstraint([
    Sketcher.Constraint("Coincident", 0, 2, 1, 1),
    Sketcher.Constraint("Coincident", 1, 2, 2, 1),
    Sketcher.Constraint("Coincident", 2, 2, 3, 1),
    Sketcher.Constraint("Coincident", 3, 2, 0, 1),
    Sketcher.Constraint("Vertical", 0),
    Sketcher.Constraint("Horizontal", 1),
    Sketcher.Constraint("Vertical", 2),
    Sketcher.Constraint("Horizontal", 3),
    Sketcher.Constraint("DistanceX", 1, 1, 1, 2, Q("1 in")),
    Sketcher.Constraint("DistanceY", 0, 2, -1, 1, Q("2 in")),
    Sketcher.Constraint("DistanceY", 0, 1, 0, 2, Q("0.25 in")),
    Sketcher.Constraint("DistanceX", 0, 2, -1, 1, Q("0.5 in")),
])
pad6 = doc.addObject("PartDesign::Pad", "Pad005")
body.addObject(pad6)
pad6.Profile = sketch9
pad6.Length = Q("0.1 in")

sketch10 = doc.addObject("Sketcher::SketchObject", "Sketch009")
body.addObject(sketch10)
sketch10.AttachmentSupport = (doc.XZ_Plane, [""])
sketch10.MapMode = "FlatFace"
sketch10.AttachmentOffset = App.Placement(Vector(0, 0, -0.1 * 25.4), App.Rotation())
sketch10.addGeometry([
    Part.Circle(Vector(-9.7, -54, 0), Vector(0, 0, 1), 1.9),
    Part.Circle(Vector(9.7, -54, 0), Vector(0, 0, 1), 1.9),
], False)
sketch10.addConstraint([
    Sketcher.Constraint("Equal", 0, 1),
    Sketcher.Constraint("Symmetric", 0, 3, 1, 3, -2),
    Sketcher.Constraint("Diameter", 0, Q("0.15 in")),
    Sketcher.Constraint("DistanceY", 0, 3, -1, 1, Q("2.125 in")),
    Sketcher.Constraint("DistanceX", 0, 3, -1, 1, 9.7),
])
pocket4 = doc.addObject("PartDesign::Pocket", "Pocket003")
body.addObject(pocket4)
pocket4.Profile = sketch10
pocket4.Length = Q("0.34 in")
pocket4.Reversed = True
doc.recompute()

fillet3 = doc.addObject("PartDesign::Fillet", "Fillet002")
body.addObject(fillet3)
fillet3.Base = (pocket4, edges_at(pocket4, [(-12.7, 1.27, -57.15), (12.7, 1.27, -57.15)]))
fillet3.Radius = Q("0.1 in")

sketch11 = doc.addObject("Sketcher::SketchObject", "Sketch010")
body.addObject(sketch11)
sketch11.AttachmentSupport = (doc.XZ_Plane, [""])
sketch11.MapMode = "FlatFace"
sketch11.AttachmentOffset = App.Placement(Vector(0, 0, -1.7 * 25.4), App.Rotation())
sketch11.addGeometry([
    Part.Circle(Vector(-83.8, -47, 0), Vector(0, 0, 1), 1.9),
    Part.Circle(Vector(83.8, -47, 0), Vector(0, 0, 1), 1.9),
    Part.Circle(Vector(83.8, 47, 0), Vector(0, 0, 1), 1.9),
    Part.Circle(Vector(-83.8, 47, 0), Vector(0, 0, 1), 1.9),
], False)
sketch11.addConstraint([
    Sketcher.Constraint("Equal", 0, 1),
    Sketcher.Constraint("Equal", 1, 2),
    Sketcher.Constraint("Equal", 2, 3),
    Sketcher.Constraint("Symmetric", 0, 3, 2, 3, -1, 1),
    Sketcher.Constraint("Symmetric", 1, 3, 3, 3, -1, 1),
    Sketcher.Constraint("Symmetric", 0, 3, 1, 3, -2),
    Sketcher.Constraint("DistanceX", 0, 3, -1, 1, Q("3.3 in")),
    Sketcher.Constraint("DistanceY", 1, 3, 2, 3, Q("3.7 in")),
    Sketcher.Constraint("Diameter", 0, 3.9),
])
pocket5 = doc.addObject("PartDesign::Pocket", "Pocket004")
body.addObject(pocket5)
pocket5.Profile = sketch11
pocket5.Length = 10
pocket5.Reversed = True

sketch12 = doc.addObject("Sketcher::SketchObject", "Sketch011")
body.addObject(sketch12)
sketch12.AttachmentSupport = (doc.XZ_Plane, [""])
sketch12.MapMode = "FlatFace"
sketch12.AttachmentOffset = App.Placement(Vector(0, 0, -1.025 * 25.4), App.Rotation())
sketch12.addGeometry([
    Part.Circle(Vector(-14.6, -16.5, 0), Vector(0, 0, 1), 1.9),
    Part.Circle(Vector(14.6, -16.5, 0), Vector(0, 0, 1), 1.9),
    Part.Circle(Vector(14.6, 16.5, 0), Vector(0, 0, 1), 1.9),
    Part.Circle(Vector(-14.6, 16.5, 0), Vector(0, 0, 1), 1.9),
], False)
sketch12.addConstraint([
    Sketcher.Constraint("Equal", 0, 1),
    Sketcher.Constraint("Equal", 1, 2),
    Sketcher.Constraint("Equal", 2, 3),
    Sketcher.Constraint("Symmetric", 0, 3, 2, 3, -1, 1),
    Sketcher.Constraint("Symmetric", 1, 3, 3, 3, -1, 1),
    Sketcher.Constraint("Symmetric", 0, 3, 1, 3, -2),
    Sketcher.Constraint("Diameter", 0, Q("0.15 in")),
    Sketcher.Constraint("DistanceY", 1, 3, 2, 3, Q("1.3 in")),
    Sketcher.Constraint("DistanceX", 0, 3, 1, 3, Q("1.15 in")),
])
pocket6 = doc.addObject("PartDesign::Pocket", "Pocket005")
body.addObject(pocket6)
pocket6.Profile = sketch12
pocket6.Length = 10
pocket6.Reversed = True

sketch13 = doc.addObject("Sketcher::SketchObject", "Sketch012")
body.addObject(sketch13)
sketch13.AttachmentSupport = (doc.XY_Plane, [""])
sketch13.MapMode = "FlatFace"
sketch13.AttachmentOffset = App.Placement(Vector(0, 0, -2 * 25.4), App.Rotation())
sketch13.addGeometry([
    Part.LineSegment(Vector(13, 15, 0), Vector(13, 3, 0)),
    Part.LineSegment(Vector(13, 3, 0), Vector(-13, 3, 0)),
    Part.LineSegment(Vector(-13, 3, 0), Vector(-13, 15, 0)),
    Part.LineSegment(Vector(-13, 15, 0), Vector(13, 15, 0)),
], False)
sketch13.addConstraint([
    Sketcher.Constraint("Coincident", 0, 2, 1, 1),
    Sketcher.Constraint("Coincident", 1, 2, 2, 1),
    Sketcher.Constraint("Coincident", 2, 2, 3, 1),
    Sketcher.Constraint("Coincident", 3, 2, 0, 1),
    Sketcher.Constraint("Vertical", 0),
    Sketcher.Constraint("Horizontal", 1),
    Sketcher.Constraint("Vertical", 2),
    Sketcher.Constraint("Horizontal", 3),
    Sketcher.Constraint("DistanceX", 1, 2, 1, 1, Q("1 in")),
    Sketcher.Constraint("DistanceY", 0, 2, 0, 1, Q("0.5 in")),
    Sketcher.Constraint("DistanceX", -1, 1, 0, 2, Q("0.5 in")),
    Sketcher.Constraint("DistanceY", -1, 1, 0, 2, Q("0.1 in")),
])
pocket7 = doc.addObject("PartDesign::Pocket", "Pocket006")
body.addObject(pocket7)
pocket7.Profile = sketch13
pocket7.Length = 10
pocket7.Reversed = True
doc.recompute()

fillet4 = doc.addObject("PartDesign::Fillet", "Fillet003")
body.addObject(fillet4)
fillet4.Base = (pocket7, edges_at(pocket7, [(12.7, 15.24, -47.625), (-12.7, 15.24, -47.625)]))
fillet4.Radius = Q("0.1 in")

doc.recompute()
